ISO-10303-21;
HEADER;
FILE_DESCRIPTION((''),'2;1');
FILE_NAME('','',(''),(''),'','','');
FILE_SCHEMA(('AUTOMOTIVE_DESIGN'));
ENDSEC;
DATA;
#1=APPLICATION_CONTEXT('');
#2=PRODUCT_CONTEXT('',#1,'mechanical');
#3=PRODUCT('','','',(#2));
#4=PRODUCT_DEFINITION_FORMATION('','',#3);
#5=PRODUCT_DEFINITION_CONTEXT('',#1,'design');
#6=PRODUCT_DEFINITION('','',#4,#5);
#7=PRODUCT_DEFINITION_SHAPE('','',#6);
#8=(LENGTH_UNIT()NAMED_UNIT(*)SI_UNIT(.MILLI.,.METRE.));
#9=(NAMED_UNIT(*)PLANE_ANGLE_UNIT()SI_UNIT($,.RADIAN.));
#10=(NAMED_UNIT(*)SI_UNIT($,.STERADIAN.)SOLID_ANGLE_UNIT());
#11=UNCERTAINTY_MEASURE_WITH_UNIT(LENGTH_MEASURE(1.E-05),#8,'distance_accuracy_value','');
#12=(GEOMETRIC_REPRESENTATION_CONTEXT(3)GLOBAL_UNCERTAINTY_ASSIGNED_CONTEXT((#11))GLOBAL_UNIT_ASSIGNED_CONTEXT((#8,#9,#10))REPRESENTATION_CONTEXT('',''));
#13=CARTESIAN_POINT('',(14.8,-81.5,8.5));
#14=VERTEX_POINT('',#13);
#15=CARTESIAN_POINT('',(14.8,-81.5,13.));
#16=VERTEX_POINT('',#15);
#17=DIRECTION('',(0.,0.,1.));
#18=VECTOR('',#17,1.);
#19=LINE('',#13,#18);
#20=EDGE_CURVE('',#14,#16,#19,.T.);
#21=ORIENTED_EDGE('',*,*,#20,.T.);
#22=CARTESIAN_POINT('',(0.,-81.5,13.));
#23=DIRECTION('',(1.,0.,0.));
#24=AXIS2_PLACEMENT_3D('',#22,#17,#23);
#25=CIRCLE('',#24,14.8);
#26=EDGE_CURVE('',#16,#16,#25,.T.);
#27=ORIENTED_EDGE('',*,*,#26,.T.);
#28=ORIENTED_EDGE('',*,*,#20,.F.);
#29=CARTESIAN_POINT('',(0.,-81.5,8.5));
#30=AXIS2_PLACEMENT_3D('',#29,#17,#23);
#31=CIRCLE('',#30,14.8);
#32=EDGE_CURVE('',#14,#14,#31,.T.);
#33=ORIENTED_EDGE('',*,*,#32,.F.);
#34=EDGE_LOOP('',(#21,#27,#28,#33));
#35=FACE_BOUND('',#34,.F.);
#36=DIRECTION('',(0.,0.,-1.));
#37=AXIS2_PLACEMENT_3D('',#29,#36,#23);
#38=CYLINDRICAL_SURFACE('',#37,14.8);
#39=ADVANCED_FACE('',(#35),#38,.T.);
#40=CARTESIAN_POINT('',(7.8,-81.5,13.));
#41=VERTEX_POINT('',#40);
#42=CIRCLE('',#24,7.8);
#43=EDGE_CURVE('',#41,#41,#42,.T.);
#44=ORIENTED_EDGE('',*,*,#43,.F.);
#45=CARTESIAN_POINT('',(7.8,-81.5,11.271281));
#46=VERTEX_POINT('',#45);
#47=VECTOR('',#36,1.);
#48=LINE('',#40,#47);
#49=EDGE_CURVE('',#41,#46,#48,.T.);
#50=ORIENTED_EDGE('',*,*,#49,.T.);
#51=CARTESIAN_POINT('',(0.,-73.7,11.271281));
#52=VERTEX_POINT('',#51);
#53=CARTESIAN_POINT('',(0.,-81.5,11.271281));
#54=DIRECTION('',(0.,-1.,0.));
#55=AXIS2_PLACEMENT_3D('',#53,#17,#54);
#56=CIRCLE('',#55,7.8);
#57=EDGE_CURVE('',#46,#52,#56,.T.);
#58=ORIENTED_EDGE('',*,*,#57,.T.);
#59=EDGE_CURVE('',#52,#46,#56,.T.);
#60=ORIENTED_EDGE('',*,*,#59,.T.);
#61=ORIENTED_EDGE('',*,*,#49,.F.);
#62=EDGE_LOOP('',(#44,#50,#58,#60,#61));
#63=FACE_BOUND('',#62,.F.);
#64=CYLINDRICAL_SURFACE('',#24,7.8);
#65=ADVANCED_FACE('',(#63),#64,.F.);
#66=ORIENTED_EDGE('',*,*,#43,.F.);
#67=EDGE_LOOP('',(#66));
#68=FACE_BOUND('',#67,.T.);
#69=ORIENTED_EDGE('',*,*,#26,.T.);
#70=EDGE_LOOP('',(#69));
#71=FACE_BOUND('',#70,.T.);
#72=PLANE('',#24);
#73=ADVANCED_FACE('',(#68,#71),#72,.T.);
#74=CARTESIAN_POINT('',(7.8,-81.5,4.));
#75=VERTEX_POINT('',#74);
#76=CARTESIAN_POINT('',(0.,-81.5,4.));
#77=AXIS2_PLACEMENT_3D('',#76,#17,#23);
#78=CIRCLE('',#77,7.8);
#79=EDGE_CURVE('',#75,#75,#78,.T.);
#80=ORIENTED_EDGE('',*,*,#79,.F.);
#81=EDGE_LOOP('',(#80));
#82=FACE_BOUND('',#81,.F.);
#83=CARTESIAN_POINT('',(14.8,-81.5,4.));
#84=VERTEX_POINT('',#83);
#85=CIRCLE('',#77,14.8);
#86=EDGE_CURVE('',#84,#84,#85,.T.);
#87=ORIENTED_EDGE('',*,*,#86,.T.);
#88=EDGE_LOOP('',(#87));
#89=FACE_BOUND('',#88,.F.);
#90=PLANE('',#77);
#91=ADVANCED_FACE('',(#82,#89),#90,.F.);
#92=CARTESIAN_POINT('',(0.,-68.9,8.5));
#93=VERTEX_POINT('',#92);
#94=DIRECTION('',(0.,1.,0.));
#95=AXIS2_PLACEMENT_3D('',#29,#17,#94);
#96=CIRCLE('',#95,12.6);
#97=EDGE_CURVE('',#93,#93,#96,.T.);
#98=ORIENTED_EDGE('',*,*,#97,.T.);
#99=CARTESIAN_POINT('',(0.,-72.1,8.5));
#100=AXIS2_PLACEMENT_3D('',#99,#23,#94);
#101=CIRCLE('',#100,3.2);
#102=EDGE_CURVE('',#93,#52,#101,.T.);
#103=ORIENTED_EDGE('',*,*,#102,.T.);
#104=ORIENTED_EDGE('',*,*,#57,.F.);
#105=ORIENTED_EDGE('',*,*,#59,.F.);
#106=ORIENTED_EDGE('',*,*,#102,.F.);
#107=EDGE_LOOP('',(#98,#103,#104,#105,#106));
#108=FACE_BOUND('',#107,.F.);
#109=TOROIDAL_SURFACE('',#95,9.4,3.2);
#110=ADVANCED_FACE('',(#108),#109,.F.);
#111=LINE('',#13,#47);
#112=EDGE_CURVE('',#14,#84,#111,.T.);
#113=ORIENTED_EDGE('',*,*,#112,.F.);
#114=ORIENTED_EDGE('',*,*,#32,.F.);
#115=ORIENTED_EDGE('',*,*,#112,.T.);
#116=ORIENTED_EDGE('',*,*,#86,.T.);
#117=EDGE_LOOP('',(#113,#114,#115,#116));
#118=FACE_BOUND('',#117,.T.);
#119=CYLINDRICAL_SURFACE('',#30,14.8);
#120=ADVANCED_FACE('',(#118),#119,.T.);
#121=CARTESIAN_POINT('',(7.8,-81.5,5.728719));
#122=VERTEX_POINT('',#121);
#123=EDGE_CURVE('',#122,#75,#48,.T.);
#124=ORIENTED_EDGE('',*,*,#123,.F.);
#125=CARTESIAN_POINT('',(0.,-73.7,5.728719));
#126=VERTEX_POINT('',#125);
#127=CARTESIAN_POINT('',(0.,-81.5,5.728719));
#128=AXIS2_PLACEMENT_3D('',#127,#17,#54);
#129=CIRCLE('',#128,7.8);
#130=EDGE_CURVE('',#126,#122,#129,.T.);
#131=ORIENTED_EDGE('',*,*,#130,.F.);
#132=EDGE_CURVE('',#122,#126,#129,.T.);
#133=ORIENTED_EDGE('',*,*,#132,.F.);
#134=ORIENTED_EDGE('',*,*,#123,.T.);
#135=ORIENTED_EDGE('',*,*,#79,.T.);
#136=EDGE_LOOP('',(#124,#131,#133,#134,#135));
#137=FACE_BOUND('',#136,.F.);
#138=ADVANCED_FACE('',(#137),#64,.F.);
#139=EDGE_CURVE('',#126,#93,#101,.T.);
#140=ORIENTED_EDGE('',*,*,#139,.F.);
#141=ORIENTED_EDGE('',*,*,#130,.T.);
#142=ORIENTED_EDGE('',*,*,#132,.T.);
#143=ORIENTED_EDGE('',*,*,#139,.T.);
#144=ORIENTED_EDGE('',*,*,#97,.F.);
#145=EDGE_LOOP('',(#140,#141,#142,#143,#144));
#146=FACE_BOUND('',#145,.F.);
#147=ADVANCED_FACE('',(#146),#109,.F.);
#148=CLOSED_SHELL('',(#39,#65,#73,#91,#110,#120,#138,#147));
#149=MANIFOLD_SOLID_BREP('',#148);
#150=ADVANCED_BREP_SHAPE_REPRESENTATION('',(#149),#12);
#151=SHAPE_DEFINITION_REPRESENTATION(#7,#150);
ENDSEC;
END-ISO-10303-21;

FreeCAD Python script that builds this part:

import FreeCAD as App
import Part
import Sketcher
from FreeCAD import Vector

doc = App.newDocument("Part")
body = doc.addObject("PartDesign::Body", "Body")

sketch1 = doc.addObject("Sketcher::SketchObject", "Sketch")
body.addObject(sketch1)
sketch1.AttachmentSupport = (doc.XY_Plane, [""])
sketch1.MapMode = "FlatFace"
sketch1.AttachmentOffset = App.Placement(Vector(0, 0, 8.5), App.Rotation())
sketch1.addGeometry([
    Part.Circle(Vector(0, -82, 0), Vector(0, 0, 1), 15),
    Part.Circle(Vector(0, -82, 0), Vector(0, 0, 1), 13),
], False)
sketch1.addConstraint([
    Sketcher.Constraint("Coincident", 1, 3, 0, 3),
    Sketcher.Constraint("PointOnObject", 0, 3, -2),
    Sketcher.Constraint("Diameter", 0, 29.6),
    Sketcher.Constraint("Diameter", 1, 26.2),
    Sketcher.Constraint("DistanceY", 0, 3, -1, 1, 81.5),
])
pad1 = doc.addObject("PartDesign::Pad", "Pad")
body.addObject(pad1)
pad1.Profile = sketch1
pad1.Length = 9
pad1.Midplane = True

sketch2 = doc.addObject("Sketcher::SketchObject", "Sketch001")
body.addObject(sketch2)
sketch2.AttachmentSupport = (doc.XY_Plane, [""])
sketch2.MapMode = "FlatFace"
sketch2.AttachmentOffset = App.Placement(Vector(0, 0, 13), App.Rotation())
sketch2.addGeometry([
    Part.Circle(Vector(0, -82, 0), Vector(0, 0, 1), 13),
    Part.Circle(Vector(0, -82, 0), Vector(0, 0, 1), 8),
], False)
sketch2.addConstraint([
    Sketcher.Constraint("Coincident", 1, 3, 0, 3),
    Sketcher.Constraint("PointOnObject", 0, 3, -2),
    Sketcher.Constraint("Diameter", 0, 26.2),
    Sketcher.Constraint("Diameter", 1, 15.6),
    Sketcher.Constraint("DistanceY", 0, 3, -1, 1, 81.5),
])
pad2 = doc.addObject("PartDesign::Pad", "Pad001")
body.addObject(pad2)
pad2.Profile = sketch2
pad2.Length = 9
pad2.Reversed = True

sketch3 = doc.addObject("Sketcher::SketchObject", "Sketch002")
body.addObject(sketch3)
sketch3.AttachmentSupport = (doc.YZ_Plane, [""])
sketch3.MapMode = "FlatFace"
sketch3.addGeometry(Part.Circle(Vector(-72.1, 8.5, 0), Vector(0, 0, 1), 3.2), False)
sketch3.addGeometry(Part.LineSegment(Vector(-81.5, 8.5, 0), Vector(-81.5, 18.5, 0)), True)
sketch3.addConstraint([
    Sketcher.Constraint("Vertical", 1),
    Sketcher.Constraint("Horizontal", 0, 3, 1, 1),
    Sketcher.Constraint("Diameter", 0, 6.4),
    Sketcher.Constraint("DistanceY", 1, 1, 1, 2, 10.0),
    Sketcher.Constraint("DistanceX", 0, 3, -1, 1, 72.1),
    Sketcher.Constraint("DistanceY", -1, 1, 0, 3, 8.5),
    Sketcher.Constraint("DistanceX", 1, 1, -1, 1, 81.5),
])
groove = doc.addObject("PartDesign::Groove", "Groove")
body.addObject(groove)
groove.Profile = sketch3
groove.ReferenceAxis = (sketch3, ["Axis0"])
groove.Angle = 360

doc.recompute()
